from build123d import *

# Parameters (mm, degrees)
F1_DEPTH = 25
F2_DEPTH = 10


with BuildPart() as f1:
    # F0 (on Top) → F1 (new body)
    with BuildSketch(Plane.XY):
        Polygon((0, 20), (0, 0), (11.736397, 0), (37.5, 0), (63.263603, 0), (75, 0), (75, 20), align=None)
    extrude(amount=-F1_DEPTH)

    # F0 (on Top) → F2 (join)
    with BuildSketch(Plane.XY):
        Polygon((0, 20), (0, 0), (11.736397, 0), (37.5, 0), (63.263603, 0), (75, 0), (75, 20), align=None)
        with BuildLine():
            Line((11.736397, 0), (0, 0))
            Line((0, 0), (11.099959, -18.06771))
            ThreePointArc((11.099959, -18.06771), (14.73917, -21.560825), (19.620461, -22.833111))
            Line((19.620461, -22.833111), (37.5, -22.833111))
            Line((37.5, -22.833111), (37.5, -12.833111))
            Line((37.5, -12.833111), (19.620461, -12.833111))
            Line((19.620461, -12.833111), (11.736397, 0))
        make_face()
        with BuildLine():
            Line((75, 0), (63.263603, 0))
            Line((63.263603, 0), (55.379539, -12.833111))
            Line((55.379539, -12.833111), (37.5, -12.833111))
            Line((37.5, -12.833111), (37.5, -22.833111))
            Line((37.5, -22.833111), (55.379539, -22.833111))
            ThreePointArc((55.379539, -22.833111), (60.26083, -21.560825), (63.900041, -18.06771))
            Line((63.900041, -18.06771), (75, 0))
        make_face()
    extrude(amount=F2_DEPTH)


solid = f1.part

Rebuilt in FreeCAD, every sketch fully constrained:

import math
import FreeCAD as App
import Part
import Sketcher
Q = App.Units.Quantity


def add_polygon(sketch, points):
    """Adds a closed chain of lines whose ends are joined by coincident constraints."""
    first, n = sketch.GeometryCount, len(points)
    for a, b in zip(points, points[1:] + points[:1]):
        sketch.addGeometry(Part.LineSegment(App.Vector(*a, 0), App.Vector(*b, 0)), False)
    for i in range(n):
        sketch.addConstraint(Sketcher.Constraint("Coincident", first + i, 2, first + (i + 1) % n, 1))

doc = App.newDocument("Part")
body = doc.addObject("PartDesign::Body", "Body")

sketch1 = body.newObject("Sketcher::SketchObject", "Sketch")
sketch1.AttachmentSupport = (doc.getObject("XY_Plane"), [""])
sketch1.MapMode = "FlatFace"
add_polygon(sketch1, [(0, 20), (0, 0), (75, 0), (75, 20)])
sketch1.addConstraint([
    Sketcher.Constraint("Vertical", 0),
    Sketcher.Constraint("Horizontal", 1),
    Sketcher.Constraint("Vertical", 2),
    Sketcher.Constraint("Horizontal", 3),
    Sketcher.Constraint("Coincident", 0, 2, -1, 1),
    Sketcher.Constraint("DistanceX", 1, 1, 1, 2, Q("75 mm")),
    Sketcher.Constraint("DistanceY", 0, 2, 0, 1, Q("20 mm")),
])
pad1 = body.newObject("PartDesign::Pad", "Pad")
pad1.Profile = sketch1
pad1.Length = 25
pad1.Reversed = True

sketch2 = body.newObject("Sketcher::SketchObject", "Sketch001")
sketch2.AttachmentSupport = (doc.getObject("XY_Plane"), [""])
sketch2.MapMode = "FlatFace"
sketch2.addGeometry(Part.LineSegment(App.Vector(0, 20, 0), App.Vector(0, 0, 0)), False)
sketch2.addGeometry(Part.LineSegment(App.Vector(0, 0, 0), App.Vector(11.099959, -18.06771, 0)), False)
sketch2.addGeometry(Part.ArcOfCircle(Part.Circle(App.Vector(19.620461, -12.833112, 0), App.Vector(0, 0, 1), 9.999999), math.radians(-148.435383), math.radians(-90.000002)), False)
sketch2.addGeometry(Part.LineSegment(App.Vector(19.620461, -22.833111, 0), App.Vector(55.379539, -22.833111, 0)), False)
sketch2.addGeometry(Part.ArcOfCircle(Part.Circle(App.Vector(55.379539, -12.833112, 0), App.Vector(0, 0, 1), 9.999999), math.radians(-89.999998), math.radians(-31.564617)), False)
sketch2.addGeometry(Part.LineSegment(App.Vector(63.900041, -18.06771, 0), App.Vector(75, 0, 0)), False)
sketch2.addGeometry(Part.LineSegment(App.Vector(75, 0, 0), App.Vector(75, 20, 0)), False)
sketch2.addGeometry(Part.LineSegment(App.Vector(75, 20, 0), App.Vector(0, 20, 0)), False)
add_polygon(sketch2, [(19.620461, -12.833111), (11.736397, 0), (63.263603, 0), (55.379539, -12.833111)])
sketch2.addConstraint([
    Sketcher.Constraint("Coincident", 0, 2, 1, 1),
    Sketcher.Constraint("Tangent", 1, 2, 2, 1),
    Sketcher.Constraint("Tangent", 2, 2, 3, 1),
    Sketcher.Constraint("Tangent", 3, 2, 4, 1),
    Sketcher.Constraint("Tangent", 4, 2, 5, 1),
    Sketcher.Constraint("Coincident", 5, 2, 6, 1),
    Sketcher.Constraint("Coincident", 6, 2, 7, 1),
    Sketcher.Constraint("Coincident", 7, 2, 0, 1),
    Sketcher.Constraint("Vertical", 0),
    Sketcher.Constraint("Horizontal", 3),
    Sketcher.Constraint("Vertical", 6),
    Sketcher.Constraint("Horizontal", 7),
    Sketcher.Constraint("Horizontal", 9),
    Sketcher.Constraint("Horizontal", 11),
    Sketcher.Constraint("Coincident", 0, 2, -1, 1),
    Sketcher.Constraint("Coincident", 10, 2, 4, 3),
    Sketcher.Constraint("Coincident", 11, 2, 2, 3),
    Sketcher.Constraint("PointOnObject", 5, 2, -1),
    Sketcher.Constraint("PointOnObject", 8, 2, -1),
    Sketcher.Constraint("Parallel", 1, 8),
    Sketcher.Constraint("Parallel", 5, 10),
    Sketcher.Constraint("Horizontal", 1, 2, 4, 2),
    Sketcher.Constraint("Radius", 2, Q("9.999999 mm")),
    Sketcher.Constraint("DistanceX", 7, 2, 7, 1, Q("75 mm")),
    Sketcher.Constraint("DistanceY", 0, 2, 0, 1, Q("20 mm")),
    Sketcher.Constraint("DistanceX", 3, 1, 3, 2, Q("35.759078 mm")),
    Sketcher.Constraint("DistanceX", 1, 2, 2, 2, Q("8.520502 mm")),
])
pad2 = body.newObject("PartDesign::Pad", "Pad001")
pad2.Profile = sketch2
pad2.Length = 10

doc.recompute()
